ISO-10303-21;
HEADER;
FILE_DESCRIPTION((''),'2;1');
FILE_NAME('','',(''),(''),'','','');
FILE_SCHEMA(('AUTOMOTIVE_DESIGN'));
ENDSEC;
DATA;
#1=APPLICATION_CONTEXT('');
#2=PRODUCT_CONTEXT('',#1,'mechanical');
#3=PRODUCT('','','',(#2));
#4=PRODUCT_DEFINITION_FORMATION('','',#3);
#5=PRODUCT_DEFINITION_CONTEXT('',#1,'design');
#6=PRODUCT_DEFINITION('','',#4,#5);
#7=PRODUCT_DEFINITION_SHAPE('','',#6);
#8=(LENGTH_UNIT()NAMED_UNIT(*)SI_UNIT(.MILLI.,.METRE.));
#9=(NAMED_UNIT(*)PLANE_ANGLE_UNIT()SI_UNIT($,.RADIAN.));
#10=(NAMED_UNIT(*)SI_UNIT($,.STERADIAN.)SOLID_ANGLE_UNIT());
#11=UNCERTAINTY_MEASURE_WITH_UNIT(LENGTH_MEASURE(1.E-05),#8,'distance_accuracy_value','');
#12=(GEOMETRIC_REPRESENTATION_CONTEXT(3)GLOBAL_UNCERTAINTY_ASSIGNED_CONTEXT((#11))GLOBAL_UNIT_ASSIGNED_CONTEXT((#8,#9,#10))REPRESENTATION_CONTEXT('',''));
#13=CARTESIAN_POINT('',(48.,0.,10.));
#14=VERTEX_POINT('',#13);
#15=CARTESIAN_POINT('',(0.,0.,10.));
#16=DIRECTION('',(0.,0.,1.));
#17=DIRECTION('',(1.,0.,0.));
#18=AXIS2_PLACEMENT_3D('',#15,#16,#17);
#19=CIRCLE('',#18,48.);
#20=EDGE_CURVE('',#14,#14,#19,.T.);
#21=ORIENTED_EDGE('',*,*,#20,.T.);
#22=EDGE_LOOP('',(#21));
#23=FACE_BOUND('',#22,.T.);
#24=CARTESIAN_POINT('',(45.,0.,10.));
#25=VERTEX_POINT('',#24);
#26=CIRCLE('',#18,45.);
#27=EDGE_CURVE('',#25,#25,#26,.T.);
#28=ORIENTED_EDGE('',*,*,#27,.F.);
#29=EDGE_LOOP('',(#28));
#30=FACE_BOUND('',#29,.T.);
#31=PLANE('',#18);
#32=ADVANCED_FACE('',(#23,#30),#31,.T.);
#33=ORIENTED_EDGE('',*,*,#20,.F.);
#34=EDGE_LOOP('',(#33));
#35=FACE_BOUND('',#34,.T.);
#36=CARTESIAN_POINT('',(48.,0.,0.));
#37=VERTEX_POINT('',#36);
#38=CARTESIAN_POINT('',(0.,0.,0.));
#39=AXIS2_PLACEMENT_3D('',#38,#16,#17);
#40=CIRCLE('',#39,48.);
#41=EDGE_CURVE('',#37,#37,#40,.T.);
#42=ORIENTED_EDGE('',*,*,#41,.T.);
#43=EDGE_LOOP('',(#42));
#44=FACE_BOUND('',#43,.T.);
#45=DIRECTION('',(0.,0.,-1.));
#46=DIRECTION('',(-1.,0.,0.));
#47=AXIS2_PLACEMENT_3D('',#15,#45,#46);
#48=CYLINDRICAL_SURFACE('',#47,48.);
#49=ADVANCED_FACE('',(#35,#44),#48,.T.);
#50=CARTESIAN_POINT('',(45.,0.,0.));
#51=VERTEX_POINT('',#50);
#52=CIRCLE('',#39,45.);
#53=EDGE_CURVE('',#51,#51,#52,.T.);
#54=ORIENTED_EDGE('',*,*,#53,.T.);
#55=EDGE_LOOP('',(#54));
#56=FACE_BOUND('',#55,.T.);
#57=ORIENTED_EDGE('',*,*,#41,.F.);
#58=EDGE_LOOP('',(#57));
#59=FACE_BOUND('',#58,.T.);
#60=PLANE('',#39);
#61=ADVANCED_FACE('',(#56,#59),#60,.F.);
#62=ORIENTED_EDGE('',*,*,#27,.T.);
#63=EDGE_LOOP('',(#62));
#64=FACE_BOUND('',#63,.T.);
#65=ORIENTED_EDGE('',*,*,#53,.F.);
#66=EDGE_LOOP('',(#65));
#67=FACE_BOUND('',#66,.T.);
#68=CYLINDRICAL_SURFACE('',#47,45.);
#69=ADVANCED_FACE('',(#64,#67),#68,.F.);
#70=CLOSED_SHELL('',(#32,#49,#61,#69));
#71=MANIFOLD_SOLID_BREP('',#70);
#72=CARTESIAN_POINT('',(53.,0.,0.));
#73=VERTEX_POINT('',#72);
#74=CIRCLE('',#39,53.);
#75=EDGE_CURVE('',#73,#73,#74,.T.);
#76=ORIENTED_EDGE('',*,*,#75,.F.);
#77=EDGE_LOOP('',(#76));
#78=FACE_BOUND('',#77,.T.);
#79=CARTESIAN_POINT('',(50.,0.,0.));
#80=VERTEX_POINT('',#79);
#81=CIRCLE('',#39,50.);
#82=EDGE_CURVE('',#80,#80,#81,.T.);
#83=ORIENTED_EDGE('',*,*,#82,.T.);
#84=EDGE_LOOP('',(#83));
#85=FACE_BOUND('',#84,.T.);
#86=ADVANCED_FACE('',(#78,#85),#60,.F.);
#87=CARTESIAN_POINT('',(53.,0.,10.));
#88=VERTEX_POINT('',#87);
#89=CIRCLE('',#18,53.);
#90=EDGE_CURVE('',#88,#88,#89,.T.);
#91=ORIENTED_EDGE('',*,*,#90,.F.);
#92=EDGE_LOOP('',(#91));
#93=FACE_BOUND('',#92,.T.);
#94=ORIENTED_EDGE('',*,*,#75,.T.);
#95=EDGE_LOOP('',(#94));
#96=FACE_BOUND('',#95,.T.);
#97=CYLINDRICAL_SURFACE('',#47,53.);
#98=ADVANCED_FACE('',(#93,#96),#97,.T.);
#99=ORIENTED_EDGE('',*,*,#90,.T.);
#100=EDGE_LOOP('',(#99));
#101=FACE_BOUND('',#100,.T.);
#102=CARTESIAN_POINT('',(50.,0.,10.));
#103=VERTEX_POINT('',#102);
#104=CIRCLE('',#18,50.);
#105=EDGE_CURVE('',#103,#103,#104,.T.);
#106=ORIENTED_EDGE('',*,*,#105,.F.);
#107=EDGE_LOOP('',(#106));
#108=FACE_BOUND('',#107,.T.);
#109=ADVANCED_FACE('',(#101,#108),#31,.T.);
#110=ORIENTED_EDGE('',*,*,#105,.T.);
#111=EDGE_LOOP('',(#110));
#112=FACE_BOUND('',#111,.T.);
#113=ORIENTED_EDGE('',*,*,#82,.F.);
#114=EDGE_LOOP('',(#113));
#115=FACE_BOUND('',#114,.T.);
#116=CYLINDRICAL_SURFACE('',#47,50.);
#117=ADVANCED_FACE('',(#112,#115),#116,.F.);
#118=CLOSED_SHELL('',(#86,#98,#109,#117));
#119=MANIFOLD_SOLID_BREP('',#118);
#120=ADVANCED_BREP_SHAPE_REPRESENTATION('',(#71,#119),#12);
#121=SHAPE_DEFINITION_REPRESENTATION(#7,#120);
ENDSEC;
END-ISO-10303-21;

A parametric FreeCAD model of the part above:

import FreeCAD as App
import Part
import Sketcher

V = App.Vector
Q = App.Units.Quantity

doc = App.newDocument("Part")
body = doc.addObject("PartDesign::Body", "Body")

sketch1 = body.newObject("Sketcher::SketchObject", "Sketch")
sketch1.AttachmentSupport = (doc.getObject("XY_Plane"), [""])
sketch1.MapMode = "FlatFace"
sketch1.addGeometry(Part.Circle(V(0, 0, 0), V(0, 0, 1), 48), False)
sketch1.addGeometry(Part.Circle(V(0, 0, 0), V(0, 0, 1), 45), False)
sketch1.addConstraint(Sketcher.Constraint("Coincident", 0, 3, -1, 1))
sketch1.addConstraint(Sketcher.Constraint("Coincident", 1, 3, -1, 1))
sketch1.addConstraint(Sketcher.Constraint("Diameter", 0, Q("96 mm")))
sketch1.addConstraint(Sketcher.Constraint("Diameter", 1, Q("90 mm")))
pad1 = body.newObject("PartDesign::Pad", "Pad")
pad1.Profile = sketch1
pad1.Length = 10
body2 = doc.addObject("PartDesign::Body", "Body001")

sketch2 = body2.newObject("Sketcher::SketchObject", "Sketch001")
sketch2.AttachmentSupport = (doc.getObject("XY_Plane001"), [""])
sketch2.MapMode = "FlatFace"
sketch2.addGeometry(Part.Circle(V(0, 0, 0), V(0, 0, 1), 53), False)
sketch2.addGeometry(Part.Circle(V(0, 0, 0), V(0, 0, 1), 50), False)
sketch2.addConstraint(Sketcher.Constraint("Coincident", 0, 3, -1, 1))
sketch2.addConstraint(Sketcher.Constraint("Coincident", 1, 3, -1, 1))
sketch2.addConstraint(Sketcher.Constraint("Diameter", 0, Q("106 mm")))
sketch2.addConstraint(Sketcher.Constraint("Diameter", 1, Q("100 mm")))
pad2 = body2.newObject("PartDesign::Pad", "Pad001")
pad2.Profile = sketch2
pad2.Length = 10

doc.recompute()
